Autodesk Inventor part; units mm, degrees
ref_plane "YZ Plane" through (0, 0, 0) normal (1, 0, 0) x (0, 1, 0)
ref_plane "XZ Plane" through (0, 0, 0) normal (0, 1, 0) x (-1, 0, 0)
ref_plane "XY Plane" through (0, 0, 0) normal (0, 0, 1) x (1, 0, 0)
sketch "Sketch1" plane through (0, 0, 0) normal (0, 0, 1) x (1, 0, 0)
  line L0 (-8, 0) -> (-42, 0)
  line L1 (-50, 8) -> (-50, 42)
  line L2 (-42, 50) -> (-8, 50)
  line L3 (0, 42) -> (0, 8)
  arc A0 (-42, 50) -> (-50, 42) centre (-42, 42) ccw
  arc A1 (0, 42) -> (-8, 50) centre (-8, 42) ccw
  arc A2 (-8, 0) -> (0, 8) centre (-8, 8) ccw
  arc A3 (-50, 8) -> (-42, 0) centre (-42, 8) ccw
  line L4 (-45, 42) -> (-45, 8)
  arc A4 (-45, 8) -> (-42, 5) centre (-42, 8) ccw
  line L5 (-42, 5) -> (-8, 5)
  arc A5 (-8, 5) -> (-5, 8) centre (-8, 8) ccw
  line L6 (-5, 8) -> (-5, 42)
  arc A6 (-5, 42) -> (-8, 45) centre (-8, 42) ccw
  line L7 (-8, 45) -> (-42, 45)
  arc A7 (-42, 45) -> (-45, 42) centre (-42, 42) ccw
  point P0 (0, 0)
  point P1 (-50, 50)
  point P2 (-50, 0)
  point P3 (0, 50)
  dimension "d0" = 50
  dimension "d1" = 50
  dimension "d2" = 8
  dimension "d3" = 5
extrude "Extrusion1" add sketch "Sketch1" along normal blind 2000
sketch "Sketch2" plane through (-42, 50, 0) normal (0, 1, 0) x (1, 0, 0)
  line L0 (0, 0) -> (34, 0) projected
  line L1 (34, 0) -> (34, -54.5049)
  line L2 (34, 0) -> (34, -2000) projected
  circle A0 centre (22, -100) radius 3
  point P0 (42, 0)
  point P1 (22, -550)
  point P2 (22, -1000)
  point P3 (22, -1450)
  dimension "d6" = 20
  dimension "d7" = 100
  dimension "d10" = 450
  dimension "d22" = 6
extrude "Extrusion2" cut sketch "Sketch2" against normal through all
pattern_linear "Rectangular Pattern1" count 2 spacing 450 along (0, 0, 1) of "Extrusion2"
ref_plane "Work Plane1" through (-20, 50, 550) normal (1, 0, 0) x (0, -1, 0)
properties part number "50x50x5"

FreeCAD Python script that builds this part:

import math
import FreeCAD as App
import Part
import Sketcher
Q = App.Units.Quantity

doc = App.newDocument("Part")
params = doc.addObject("Spreadsheet::Sheet", "Params")
for row, (alias, value) in enumerate([
    ("sketch1_radius", "8 mm"),
    ("pad1_length", "2000 mm"),
    ("sketch2_diameter", "6 mm"),
    ("linearpattern_pitch", "450 mm"),
], start=1):
    params.set(f"A{row}", alias)
    params.set(f"B{row}", "=" + value)
    params.setAlias(f"B{row}", alias)

body = doc.addObject("PartDesign::Body", "Body")

# Sketch on XY plane
sketch1 = doc.addObject("Sketcher::SketchObject", "Sketch")
body.addObject(sketch1)
sketch1.AttachmentSupport = (doc.XY_Plane, [""])
sketch1.MapMode = "FlatFace"
sketch1.addGeometry([
    Part.LineSegment(App.Vector(-42, 0, 0), App.Vector(-8, 0, 0)),  # 0
    Part.ArcOfCircle(Part.Circle(App.Vector(-8, 8, 0), App.Vector(0, 0, 1), 8), math.radians(-90), math.radians(0)),  # 1
    Part.LineSegment(App.Vector(0, 8, 0), App.Vector(0, 42, 0)),  # 2
    Part.ArcOfCircle(Part.Circle(App.Vector(-8, 42, 0), App.Vector(0, 0, 1), 8), math.radians(0), math.radians(90)),  # 3
    Part.LineSegment(App.Vector(-8, 50, 0), App.Vector(-42, 50, 0)),  # 4
    Part.ArcOfCircle(Part.Circle(App.Vector(-42, 42, 0), App.Vector(0, 0, 1), 8), math.radians(90), math.radians(180)),  # 5
    Part.LineSegment(App.Vector(-50, 42, 0), App.Vector(-50, 8, 0)),  # 6
    Part.ArcOfCircle(Part.Circle(App.Vector(-42, 8, 0), App.Vector(0, 0, 1), 8), math.radians(180), math.radians(270)),  # 7
    Part.LineSegment(App.Vector(-45, 8, 0), App.Vector(-45, 42, 0)),  # 8
    Part.ArcOfCircle(Part.Circle(App.Vector(-42, 42, 0), App.Vector(0, 0, 1), 3), math.radians(90), math.radians(180)),  # 9
    Part.LineSegment(App.Vector(-42, 45, 0), App.Vector(-8, 45, 0)),  # 10
    Part.ArcOfCircle(Part.Circle(App.Vector(-8, 42, 0), App.Vector(0, 0, 1), 3), math.radians(0), math.radians(90)),  # 11
    Part.LineSegment(App.Vector(-5, 42, 0), App.Vector(-5, 8, 0)),  # 12
    Part.ArcOfCircle(Part.Circle(App.Vector(-8, 8, 0), App.Vector(0, 0, 1), 3), math.radians(-90), math.radians(0)),  # 13
    Part.LineSegment(App.Vector(-8, 5, 0), App.Vector(-42, 5, 0)),  # 14
    Part.ArcOfCircle(Part.Circle(App.Vector(-42, 8, 0), App.Vector(0, 0, 1), 3), math.radians(180), math.radians(270)),  # 15
], False)
sketch1.addConstraint([
    Sketcher.Constraint("Tangent", 0, 2, 1, 1),
    Sketcher.Constraint("Tangent", 1, 2, 2, 1),
    Sketcher.Constraint("Tangent", 2, 2, 3, 1),
    Sketcher.Constraint("Tangent", 3, 2, 4, 1),
    Sketcher.Constraint("Tangent", 4, 2, 5, 1),
    Sketcher.Constraint("Tangent", 5, 2, 6, 1),
    Sketcher.Constraint("Tangent", 6, 2, 7, 1),
    Sketcher.Constraint("Tangent", 7, 2, 0, 1),
    Sketcher.Constraint("Tangent", 8, 2, 9, 2),
    Sketcher.Constraint("Tangent", 9, 1, 10, 1),
    Sketcher.Constraint("Tangent", 10, 2, 11, 2),
    Sketcher.Constraint("Tangent", 11, 1, 12, 1),
    Sketcher.Constraint("Tangent", 12, 2, 13, 2),
    Sketcher.Constraint("Tangent", 13, 1, 14, 1),
    Sketcher.Constraint("Tangent", 14, 2, 15, 2),
    Sketcher.Constraint("Tangent", 15, 1, 8, 1),
    Sketcher.Constraint("Horizontal", 0),
    Sketcher.Constraint("Vertical", 2),
    Sketcher.Constraint("Horizontal", 4),
    Sketcher.Constraint("Vertical", 6),
    Sketcher.Constraint("Vertical", 8),
    Sketcher.Constraint("Horizontal", 10),
    Sketcher.Constraint("Vertical", 12),
    Sketcher.Constraint("Horizontal", 14),
    Sketcher.Constraint("Coincident", 9, 3, 5, 3),
    Sketcher.Constraint("Coincident", 11, 3, 3, 3),
    Sketcher.Constraint("Coincident", 13, 3, 1, 3),
    Sketcher.Constraint("Equal", 1, 3),
    Sketcher.Constraint("Equal", 3, 5),
    Sketcher.Constraint("Equal", 5, 7),
    Sketcher.Constraint("Equal", 13, 15),
    Sketcher.Constraint("PointOnObject", 0, 2, -1),
    Sketcher.Constraint("PointOnObject", 1, 2, -2),
    Sketcher.Constraint("Equal", 14, 2),
    Sketcher.Constraint("Radius", 1, Q("8 mm")),
    Sketcher.Constraint("DistanceY", -1, 1, 3, 2, Q("50 mm")),
    Sketcher.Constraint("DistanceX", 11, 1, -1, 1, Q("5 mm")),
])
sketch1.setExpression("Constraints[34]", "Params.sketch1_radius")
pad1 = doc.addObject("PartDesign::Pad", "Pad")
body.addObject(pad1)
pad1.Profile = sketch1
pad1.setExpression("Length", "Params.pad1_length")

# Sketch on XZ plane
sketch2 = doc.addObject("Sketcher::SketchObject", "Sketch001")
body.addObject(sketch2)
sketch2.AttachmentSupport = (doc.XZ_Plane, [""])
sketch2.MapMode = "FlatFace"
sketch2.AttachmentOffset = App.Placement(App.Vector(0, 0, -50), App.Rotation())
sketch2.addGeometry(Part.Circle(App.Vector(-20, 100, 0), App.Vector(0, 0, 1), 3), False)
sketch2.addConstraint([
    Sketcher.Constraint("Diameter", 0, Q("6 mm")),
    Sketcher.Constraint("DistanceX", 0, 3, -1, 1, Q("20 mm")),
    Sketcher.Constraint("DistanceY", -1, 1, 0, 3, Q("100 mm")),
])
sketch2.setExpression("Constraints[0]", "Params.sketch2_diameter")
pocket1 = doc.addObject("PartDesign::Pocket", "Pocket")
body.addObject(pocket1)
pocket1.Profile = sketch2
pocket1.Type = "ThroughAll"
pocket1.Reversed = True
doc.recompute()

linearpattern = doc.addObject("PartDesign::LinearPattern", "LinearPattern")
body.addObject(linearpattern)
linearpattern.Originals = [pocket1]
linearpattern.Direction = (doc.Z_Axis, [""])
linearpattern.Mode = "offset"
linearpattern.setExpression("Offset", "Params.linearpattern_pitch")
linearpattern.Occurrences = 2
body.Tip = linearpattern

doc.recompute()
